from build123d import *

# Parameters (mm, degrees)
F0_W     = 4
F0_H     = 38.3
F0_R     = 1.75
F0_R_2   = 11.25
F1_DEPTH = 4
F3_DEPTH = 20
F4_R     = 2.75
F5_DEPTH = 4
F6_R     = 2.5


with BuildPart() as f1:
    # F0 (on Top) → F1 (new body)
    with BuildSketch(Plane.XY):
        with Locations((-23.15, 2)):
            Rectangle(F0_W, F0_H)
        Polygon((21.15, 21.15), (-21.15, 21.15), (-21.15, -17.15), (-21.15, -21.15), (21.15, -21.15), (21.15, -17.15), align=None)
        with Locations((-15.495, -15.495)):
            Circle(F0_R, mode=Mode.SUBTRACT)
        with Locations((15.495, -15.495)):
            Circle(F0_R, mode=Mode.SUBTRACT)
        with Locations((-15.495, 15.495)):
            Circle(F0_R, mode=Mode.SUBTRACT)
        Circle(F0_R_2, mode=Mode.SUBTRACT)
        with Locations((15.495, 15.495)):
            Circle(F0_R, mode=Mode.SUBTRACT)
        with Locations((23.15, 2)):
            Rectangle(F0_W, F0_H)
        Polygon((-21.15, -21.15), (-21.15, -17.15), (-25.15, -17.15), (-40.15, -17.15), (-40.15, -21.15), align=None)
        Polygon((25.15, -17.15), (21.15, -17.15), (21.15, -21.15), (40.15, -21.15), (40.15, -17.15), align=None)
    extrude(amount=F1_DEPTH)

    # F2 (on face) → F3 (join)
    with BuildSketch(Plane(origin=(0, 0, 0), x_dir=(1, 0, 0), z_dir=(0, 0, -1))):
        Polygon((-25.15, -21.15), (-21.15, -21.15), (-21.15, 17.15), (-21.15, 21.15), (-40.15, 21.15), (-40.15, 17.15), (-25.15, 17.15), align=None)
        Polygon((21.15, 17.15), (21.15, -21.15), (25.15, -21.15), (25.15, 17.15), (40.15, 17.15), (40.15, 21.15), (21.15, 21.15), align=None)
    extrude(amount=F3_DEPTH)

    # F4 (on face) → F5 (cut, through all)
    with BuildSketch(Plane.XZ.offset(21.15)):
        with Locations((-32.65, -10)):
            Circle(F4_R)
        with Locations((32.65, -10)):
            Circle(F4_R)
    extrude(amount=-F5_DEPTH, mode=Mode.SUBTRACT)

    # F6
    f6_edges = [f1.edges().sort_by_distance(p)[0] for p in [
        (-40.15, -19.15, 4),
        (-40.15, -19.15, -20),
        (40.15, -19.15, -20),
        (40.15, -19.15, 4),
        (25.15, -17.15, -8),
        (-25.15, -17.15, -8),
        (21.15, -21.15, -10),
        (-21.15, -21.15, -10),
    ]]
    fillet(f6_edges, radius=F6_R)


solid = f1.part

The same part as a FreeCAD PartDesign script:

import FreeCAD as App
import Part
import Sketcher
from FreeCAD import Vector
Q = App.Units.Quantity


def edges_at(feature, points):
    """Names of the edges that pass closest to the given points."""
    edges = feature.Shape.Edges
    near = lambda p: min(range(len(edges)), key=lambda i: edges[i].distToShape(Part.Vertex(*p))[0])
    return sorted({f"Edge{near(p) + 1}" for p in points})


def add_polygon(sketch, points):
    """Adds a closed chain of lines whose ends are joined by coincident constraints."""
    first, n = sketch.GeometryCount, len(points)
    for a, b in zip(points, points[1:] + points[:1]):
        sketch.addGeometry(Part.LineSegment(App.Vector(*a, 0), App.Vector(*b, 0)), False)
    for i in range(n):
        sketch.addConstraint(Sketcher.Constraint("Coincident", first + i, 2, first + (i + 1) % n, 1))

doc = App.newDocument("Part")
body = doc.addObject("PartDesign::Body", "Body")

sketch1 = body.newObject("Sketcher::SketchObject", "Sketch")
sketch1.AttachmentSupport = (doc.getObject("XY_Plane"), [""])
sketch1.MapMode = "FlatFace"
add_polygon(sketch1, [(-25.1, 21.1), (-25.1, -17.1), (-40.1, -17.1), (-40.1, -21.1), (40.1, -21.1), (40.1, -17.1), (25.1, -17.1), (25.1, 21.1)])
sketch1.addGeometry(Part.Circle(Vector(-15.5, -15.5, 0), Vector(0, 0, 1), 1.8), False)
sketch1.addGeometry(Part.Circle(Vector(15.5, -15.5, 0), Vector(0, 0, 1), 1.8), False)
sketch1.addGeometry(Part.Circle(Vector(-15.5, 15.5, 0), Vector(0, 0, 1), 1.8), False)
sketch1.addGeometry(Part.Circle(Vector(0, 0, 0), Vector(0, 0, 1), 11.2), False)
sketch1.addGeometry(Part.Circle(Vector(15.5, 15.5, 0), Vector(0, 0, 1), 1.8), False)
sketch1.addConstraint([
    Sketcher.Constraint("Vertical", 0),
    Sketcher.Constraint("Horizontal", 1),
    Sketcher.Constraint("Vertical", 2),
    Sketcher.Constraint("Horizontal", 3),
    Sketcher.Constraint("Vertical", 4),
    Sketcher.Constraint("Horizontal", 5),
    Sketcher.Constraint("Vertical", 6),
    Sketcher.Constraint("Horizontal", 7),
    Sketcher.Constraint("Coincident", 11, 3, -1, 1),
    Sketcher.Constraint("Equal", 8, 9),
    Sketcher.Constraint("Equal", 9, 10),
    Sketcher.Constraint("Equal", 10, 12),
    Sketcher.Constraint("Symmetric", 9, 3, 10, 3, -1, 1),
    Sketcher.Constraint("Symmetric", 8, 3, 12, 3, -1, 1),
    Sketcher.Constraint("Symmetric", 8, 3, 9, 3, -2),
    Sketcher.Constraint("Symmetric", 1, 2, 4, 2, -2),
    Sketcher.Constraint("Equal", 1, 5),
    Sketcher.Constraint("Diameter", 8, Q("3.5 mm")),
    Sketcher.Constraint("Diameter", 11, Q("22.5 mm")),
    Sketcher.Constraint("DistanceX", 1, 2, 1, 1, Q("15 mm")),
    Sketcher.Constraint("DistanceY", 2, 2, 2, 1, Q("4 mm")),
    Sketcher.Constraint("DistanceX", 3, 1, 3, 2, Q("80.3 mm")),
    Sketcher.Constraint("DistanceY", 0, 2, 0, 1, Q("38.3 mm")),
    Sketcher.Constraint("DistanceY", 0, 2, -1, 1, Q("17.15 mm")),
    Sketcher.Constraint("DistanceX", 8, 3, 9, 3, Q("30.99 mm")),
    Sketcher.Constraint("DistanceY", 8, 3, 10, 3, Q("30.99 mm")),
])
pad1 = body.newObject("PartDesign::Pad", "Pad")
pad1.Profile = sketch1
pad1.Length = 4

sketch2 = body.newObject("Sketcher::SketchObject", "Sketch001")
sketch2.AttachmentSupport = (doc.getObject("XY_Plane"), [""])
sketch2.MapMode = "FlatFace"
add_polygon(sketch2, [(-25.1, 21.1), (-21.1, 21.1), (-21.1, -21.1), (-40.1, -21.1), (-40.1, -17.1), (-25.1, -17.1)])
add_polygon(sketch2, [(21.1, 21.1), (25.1, 21.1), (25.1, -17.1), (40.1, -17.1), (40.1, -21.1), (21.1, -21.1)])
sketch2.addConstraint([
    Sketcher.Constraint("Horizontal", 0),
    Sketcher.Constraint("Vertical", 1),
    Sketcher.Constraint("Horizontal", 2),
    Sketcher.Constraint("Vertical", 3),
    Sketcher.Constraint("Horizontal", 4),
    Sketcher.Constraint("Vertical", 5),
    Sketcher.Constraint("Horizontal", 6),
    Sketcher.Constraint("Vertical", 7),
    Sketcher.Constraint("Horizontal", 8),
    Sketcher.Constraint("Vertical", 9),
    Sketcher.Constraint("Horizontal", 10),
    Sketcher.Constraint("Vertical", 11),
    Sketcher.Constraint("Symmetric", 0, 2, 10, 2, -1, 1),
    Sketcher.Constraint("Symmetric", 5, 2, 6, 2, -2),
    Sketcher.Constraint("Symmetric", 3, 2, 8, 2, -2),
    Sketcher.Constraint("Horizontal", 2, 2, 9, 2),
    Sketcher.Constraint("Equal", 6, 3),
    Sketcher.Constraint("DistanceX", 0, 1, 0, 2, Q("4 mm")),
    Sketcher.Constraint("DistanceX", 2, 2, 2, 1, Q("19 mm")),
    Sketcher.Constraint("DistanceY", 1, 2, 1, 1, Q("42.3 mm")),
    Sketcher.Constraint("DistanceX", 0, 2, 6, 2, Q("46.3 mm")),
])
pad2 = body.newObject("PartDesign::Pad", "Pad001")
pad2.Profile = sketch2
pad2.Length = 20
pad2.Reversed = True

sketch3 = body.newObject("Sketcher::SketchObject", "Sketch002")
sketch3.AttachmentSupport = (doc.getObject("XZ_Plane"), [""])
sketch3.MapMode = "FlatFace"
sketch3.AttachmentOffset = App.Placement(Vector(0, 0, 21.15), App.Rotation())
sketch3.addGeometry([
    Part.Circle(Vector(-32.6, -10, 0), Vector(0, 0, 1), 2.8),
    Part.Circle(Vector(32.6, -10, 0), Vector(0, 0, 1), 2.8),
], False)
sketch3.addConstraint([
    Sketcher.Constraint("Equal", 0, 1),
    Sketcher.Constraint("Symmetric", 0, 3, 1, 3, -2),
    Sketcher.Constraint("Diameter", 0, Q("5.5 mm")),
    Sketcher.Constraint("DistanceY", 0, 3, -1, 1, Q("10 mm")),
    Sketcher.Constraint("DistanceX", 0, 3, 1, 3, Q("65.3 mm")),
])
pocket1 = body.newObject("PartDesign::Pocket", "Pocket")
pocket1.Profile = sketch3
pocket1.Type = "ThroughAll"
doc.recompute()

fillet = body.newObject("PartDesign::Fillet", "Fillet")
fillet.Base = (pocket1, edges_at(pocket1, [
    (-40.15, -19.15, 4),
    (-40.15, -19.15, -20),
    (40.15, -19.15, -20),
    (40.15, -19.15, 4),
    (25.15, -17.15, -8),
    (-25.15, -17.15, -8),
    (21.15, -21.15, -10),
    (-21.15, -21.15, -10),
]))
fillet.Radius = 2.5

doc.recompute()
